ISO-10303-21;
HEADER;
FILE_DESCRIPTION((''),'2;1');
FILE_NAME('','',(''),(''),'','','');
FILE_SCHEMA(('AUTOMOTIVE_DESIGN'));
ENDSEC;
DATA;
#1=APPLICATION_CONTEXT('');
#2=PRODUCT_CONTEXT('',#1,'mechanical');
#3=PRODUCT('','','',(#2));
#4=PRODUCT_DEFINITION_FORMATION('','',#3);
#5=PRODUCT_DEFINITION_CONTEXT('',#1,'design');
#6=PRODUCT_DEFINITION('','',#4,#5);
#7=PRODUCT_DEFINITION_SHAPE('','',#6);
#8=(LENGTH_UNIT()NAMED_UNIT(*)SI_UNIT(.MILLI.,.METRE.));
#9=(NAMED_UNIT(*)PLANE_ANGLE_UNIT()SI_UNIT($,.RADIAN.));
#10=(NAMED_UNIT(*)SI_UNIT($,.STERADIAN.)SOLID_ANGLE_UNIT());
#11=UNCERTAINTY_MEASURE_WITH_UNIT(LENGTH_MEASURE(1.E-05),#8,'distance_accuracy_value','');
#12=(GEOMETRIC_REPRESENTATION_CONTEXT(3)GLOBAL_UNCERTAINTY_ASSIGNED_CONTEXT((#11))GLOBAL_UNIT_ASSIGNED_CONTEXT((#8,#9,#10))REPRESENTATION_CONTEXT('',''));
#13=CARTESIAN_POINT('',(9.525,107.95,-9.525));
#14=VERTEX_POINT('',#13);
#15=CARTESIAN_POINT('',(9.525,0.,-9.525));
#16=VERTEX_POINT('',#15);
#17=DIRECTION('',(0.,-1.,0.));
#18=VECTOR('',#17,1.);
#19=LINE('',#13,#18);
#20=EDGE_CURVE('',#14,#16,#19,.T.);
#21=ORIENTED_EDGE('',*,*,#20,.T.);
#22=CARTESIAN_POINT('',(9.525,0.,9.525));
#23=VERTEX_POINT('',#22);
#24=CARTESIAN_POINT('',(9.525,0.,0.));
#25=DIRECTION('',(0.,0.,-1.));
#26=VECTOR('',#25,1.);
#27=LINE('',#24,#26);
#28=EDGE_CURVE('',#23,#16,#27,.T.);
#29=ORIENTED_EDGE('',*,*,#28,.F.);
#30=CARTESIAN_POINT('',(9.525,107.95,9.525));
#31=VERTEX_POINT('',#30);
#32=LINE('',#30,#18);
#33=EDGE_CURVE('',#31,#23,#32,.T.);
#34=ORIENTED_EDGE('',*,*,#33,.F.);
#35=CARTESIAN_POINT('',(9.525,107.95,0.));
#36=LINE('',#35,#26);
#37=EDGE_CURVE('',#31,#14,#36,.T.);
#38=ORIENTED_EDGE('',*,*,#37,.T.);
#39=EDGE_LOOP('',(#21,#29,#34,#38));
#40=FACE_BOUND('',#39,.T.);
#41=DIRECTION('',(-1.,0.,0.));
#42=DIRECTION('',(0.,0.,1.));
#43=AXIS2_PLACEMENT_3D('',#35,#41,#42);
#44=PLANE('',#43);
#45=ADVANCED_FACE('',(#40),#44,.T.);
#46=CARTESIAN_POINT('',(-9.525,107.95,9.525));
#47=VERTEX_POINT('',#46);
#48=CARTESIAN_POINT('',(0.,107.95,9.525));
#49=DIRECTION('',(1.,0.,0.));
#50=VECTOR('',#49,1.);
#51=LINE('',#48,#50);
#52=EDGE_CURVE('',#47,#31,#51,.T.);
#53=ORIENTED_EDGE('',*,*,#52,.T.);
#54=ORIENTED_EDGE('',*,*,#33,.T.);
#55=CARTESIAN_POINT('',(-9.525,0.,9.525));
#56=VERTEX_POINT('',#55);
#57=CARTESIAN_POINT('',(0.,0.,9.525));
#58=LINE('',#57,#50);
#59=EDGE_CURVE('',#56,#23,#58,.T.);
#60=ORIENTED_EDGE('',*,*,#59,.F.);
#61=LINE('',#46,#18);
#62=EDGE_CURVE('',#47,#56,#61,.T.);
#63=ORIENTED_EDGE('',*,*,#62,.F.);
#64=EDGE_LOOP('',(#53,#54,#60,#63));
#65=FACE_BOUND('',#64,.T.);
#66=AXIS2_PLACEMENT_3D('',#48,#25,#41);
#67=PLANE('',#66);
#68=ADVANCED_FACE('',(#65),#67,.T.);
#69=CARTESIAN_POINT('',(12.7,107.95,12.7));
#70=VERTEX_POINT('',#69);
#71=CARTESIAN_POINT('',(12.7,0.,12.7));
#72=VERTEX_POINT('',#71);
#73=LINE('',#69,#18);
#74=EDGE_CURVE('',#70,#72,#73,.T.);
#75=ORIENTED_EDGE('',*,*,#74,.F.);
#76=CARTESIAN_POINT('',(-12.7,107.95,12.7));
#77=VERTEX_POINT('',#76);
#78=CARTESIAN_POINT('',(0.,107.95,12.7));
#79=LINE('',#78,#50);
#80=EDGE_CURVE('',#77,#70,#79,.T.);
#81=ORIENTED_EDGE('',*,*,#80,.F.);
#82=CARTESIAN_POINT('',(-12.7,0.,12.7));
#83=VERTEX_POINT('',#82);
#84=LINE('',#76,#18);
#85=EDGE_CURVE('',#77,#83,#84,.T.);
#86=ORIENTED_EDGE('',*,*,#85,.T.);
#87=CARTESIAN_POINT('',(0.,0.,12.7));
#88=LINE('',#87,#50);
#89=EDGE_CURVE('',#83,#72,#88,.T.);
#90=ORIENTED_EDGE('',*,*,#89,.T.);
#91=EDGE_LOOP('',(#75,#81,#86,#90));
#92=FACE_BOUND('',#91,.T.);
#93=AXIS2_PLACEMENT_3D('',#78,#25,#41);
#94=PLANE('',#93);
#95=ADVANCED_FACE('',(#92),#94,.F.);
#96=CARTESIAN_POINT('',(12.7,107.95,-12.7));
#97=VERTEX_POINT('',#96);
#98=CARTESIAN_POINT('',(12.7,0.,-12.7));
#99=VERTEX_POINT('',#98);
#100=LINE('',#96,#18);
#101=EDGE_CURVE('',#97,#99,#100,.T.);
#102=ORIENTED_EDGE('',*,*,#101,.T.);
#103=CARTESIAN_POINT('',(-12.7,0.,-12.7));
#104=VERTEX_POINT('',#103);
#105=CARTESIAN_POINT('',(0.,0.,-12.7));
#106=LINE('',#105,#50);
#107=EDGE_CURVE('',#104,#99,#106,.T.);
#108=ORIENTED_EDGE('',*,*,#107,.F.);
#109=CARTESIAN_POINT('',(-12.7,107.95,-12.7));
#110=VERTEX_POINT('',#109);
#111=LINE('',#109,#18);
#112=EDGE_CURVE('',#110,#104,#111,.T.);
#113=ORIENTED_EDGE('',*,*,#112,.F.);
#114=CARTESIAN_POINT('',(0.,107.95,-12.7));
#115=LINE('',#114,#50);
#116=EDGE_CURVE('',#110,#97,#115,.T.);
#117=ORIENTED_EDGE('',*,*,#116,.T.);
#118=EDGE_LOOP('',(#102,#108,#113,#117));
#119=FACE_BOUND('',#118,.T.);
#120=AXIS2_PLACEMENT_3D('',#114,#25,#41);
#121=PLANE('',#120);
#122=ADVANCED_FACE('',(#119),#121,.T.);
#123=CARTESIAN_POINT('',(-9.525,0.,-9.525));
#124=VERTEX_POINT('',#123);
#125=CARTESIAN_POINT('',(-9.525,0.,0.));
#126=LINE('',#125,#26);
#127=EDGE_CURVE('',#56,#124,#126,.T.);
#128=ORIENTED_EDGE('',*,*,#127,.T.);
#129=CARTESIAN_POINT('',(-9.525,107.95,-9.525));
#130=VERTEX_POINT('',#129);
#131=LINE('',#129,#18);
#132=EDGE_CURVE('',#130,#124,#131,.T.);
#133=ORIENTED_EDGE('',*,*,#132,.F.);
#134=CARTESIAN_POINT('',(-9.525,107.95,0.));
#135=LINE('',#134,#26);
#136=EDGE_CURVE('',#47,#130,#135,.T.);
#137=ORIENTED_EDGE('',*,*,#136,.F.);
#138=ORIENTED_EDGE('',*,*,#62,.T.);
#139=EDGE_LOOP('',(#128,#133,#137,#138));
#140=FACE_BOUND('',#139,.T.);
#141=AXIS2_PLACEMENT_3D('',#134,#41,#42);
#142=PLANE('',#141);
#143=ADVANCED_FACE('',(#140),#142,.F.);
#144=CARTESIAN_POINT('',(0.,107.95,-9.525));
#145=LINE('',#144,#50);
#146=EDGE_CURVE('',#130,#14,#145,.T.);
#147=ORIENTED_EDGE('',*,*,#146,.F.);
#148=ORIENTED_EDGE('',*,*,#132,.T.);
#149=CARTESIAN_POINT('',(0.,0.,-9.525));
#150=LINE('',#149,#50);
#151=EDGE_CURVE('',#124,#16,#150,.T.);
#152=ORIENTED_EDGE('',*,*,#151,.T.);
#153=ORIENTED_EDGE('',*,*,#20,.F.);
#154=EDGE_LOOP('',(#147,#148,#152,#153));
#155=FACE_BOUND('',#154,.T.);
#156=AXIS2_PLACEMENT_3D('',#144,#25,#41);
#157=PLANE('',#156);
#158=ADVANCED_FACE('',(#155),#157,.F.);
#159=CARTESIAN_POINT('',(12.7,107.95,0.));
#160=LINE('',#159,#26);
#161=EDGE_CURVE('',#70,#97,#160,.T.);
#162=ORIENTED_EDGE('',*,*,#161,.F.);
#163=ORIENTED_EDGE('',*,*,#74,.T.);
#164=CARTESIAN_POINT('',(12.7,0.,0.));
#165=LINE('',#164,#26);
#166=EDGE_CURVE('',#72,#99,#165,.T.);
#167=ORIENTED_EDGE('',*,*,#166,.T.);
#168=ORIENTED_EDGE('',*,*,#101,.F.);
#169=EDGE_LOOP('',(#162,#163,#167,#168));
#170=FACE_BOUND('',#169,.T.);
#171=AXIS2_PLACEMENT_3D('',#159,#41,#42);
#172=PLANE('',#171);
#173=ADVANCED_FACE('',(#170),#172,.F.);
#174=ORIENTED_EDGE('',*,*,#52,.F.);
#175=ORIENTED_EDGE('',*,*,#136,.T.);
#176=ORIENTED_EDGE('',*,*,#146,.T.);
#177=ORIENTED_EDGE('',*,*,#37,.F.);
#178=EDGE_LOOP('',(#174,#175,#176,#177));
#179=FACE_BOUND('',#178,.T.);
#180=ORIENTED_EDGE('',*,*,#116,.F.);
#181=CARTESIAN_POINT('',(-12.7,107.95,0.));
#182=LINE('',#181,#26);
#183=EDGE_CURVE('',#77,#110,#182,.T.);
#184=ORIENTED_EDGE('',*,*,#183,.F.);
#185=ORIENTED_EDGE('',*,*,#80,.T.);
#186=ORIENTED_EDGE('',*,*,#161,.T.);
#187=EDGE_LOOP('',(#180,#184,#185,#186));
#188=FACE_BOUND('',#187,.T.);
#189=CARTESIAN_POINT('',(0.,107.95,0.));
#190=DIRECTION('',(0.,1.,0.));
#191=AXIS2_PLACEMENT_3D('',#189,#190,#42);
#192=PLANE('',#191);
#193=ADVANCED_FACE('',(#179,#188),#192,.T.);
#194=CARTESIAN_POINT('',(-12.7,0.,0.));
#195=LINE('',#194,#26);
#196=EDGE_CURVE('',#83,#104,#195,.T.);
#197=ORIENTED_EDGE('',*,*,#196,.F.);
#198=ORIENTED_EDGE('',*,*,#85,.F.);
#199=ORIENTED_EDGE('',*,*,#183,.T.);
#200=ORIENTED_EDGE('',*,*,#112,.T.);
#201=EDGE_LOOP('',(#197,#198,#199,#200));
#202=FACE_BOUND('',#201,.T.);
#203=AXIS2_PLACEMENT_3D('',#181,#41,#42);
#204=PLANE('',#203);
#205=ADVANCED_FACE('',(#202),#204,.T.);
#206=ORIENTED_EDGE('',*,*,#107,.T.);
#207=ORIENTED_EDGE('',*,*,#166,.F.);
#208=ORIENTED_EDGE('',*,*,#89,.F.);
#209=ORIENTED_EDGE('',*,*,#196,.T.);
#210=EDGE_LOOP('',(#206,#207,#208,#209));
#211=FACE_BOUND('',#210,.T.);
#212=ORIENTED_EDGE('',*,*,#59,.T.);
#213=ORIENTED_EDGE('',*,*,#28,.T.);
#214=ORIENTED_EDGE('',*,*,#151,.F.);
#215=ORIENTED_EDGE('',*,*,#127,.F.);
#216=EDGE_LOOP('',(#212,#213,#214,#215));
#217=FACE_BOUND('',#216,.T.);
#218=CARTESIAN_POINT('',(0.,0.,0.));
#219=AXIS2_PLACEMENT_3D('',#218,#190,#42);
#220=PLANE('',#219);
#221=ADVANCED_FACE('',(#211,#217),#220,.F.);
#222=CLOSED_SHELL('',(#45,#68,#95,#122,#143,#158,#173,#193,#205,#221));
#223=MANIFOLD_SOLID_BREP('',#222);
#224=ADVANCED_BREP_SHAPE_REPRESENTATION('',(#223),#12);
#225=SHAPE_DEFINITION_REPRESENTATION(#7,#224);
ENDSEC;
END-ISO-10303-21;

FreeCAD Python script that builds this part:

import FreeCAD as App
import Part
import Sketcher
Q = App.Units.Quantity


def add_polygon(sketch, points):
    """Adds a closed chain of lines whose ends are joined by coincident constraints."""
    first, n = sketch.GeometryCount, len(points)
    for a, b in zip(points, points[1:] + points[:1]):
        sketch.addGeometry(Part.LineSegment(App.Vector(*a, 0), App.Vector(*b, 0)), False)
    for i in range(n):
        sketch.addConstraint(Sketcher.Constraint("Coincident", first + i, 2, first + (i + 1) % n, 1))

doc = App.newDocument("Part")
body = doc.addObject("PartDesign::Body", "Body")

# Sketch on XZ plane
sketch1 = body.newObject("Sketcher::SketchObject", "Sketch")
sketch1.AttachmentSupport = (doc.getObject("XZ_Plane"), [""])
sketch1.MapMode = "FlatFace"
add_polygon(sketch1, [(-12.7, -12.7), (-12.7, 12.7), (12.7, 12.7), (12.7, -12.7)])  # lines 0-3
add_polygon(sketch1, [(9.525, 9.525), (-9.525, 9.525), (-9.525, -9.525), (9.525, -9.525)])  # lines 4-7
sketch1.addConstraint([
    Sketcher.Constraint("Vertical", 0),
    Sketcher.Constraint("Horizontal", 1),
    Sketcher.Constraint("Vertical", 2),
    Sketcher.Constraint("Horizontal", 3),
    Sketcher.Constraint("Horizontal", 4),
    Sketcher.Constraint("Vertical", 5),
    Sketcher.Constraint("Horizontal", 6),
    Sketcher.Constraint("Vertical", 7),
    Sketcher.Constraint("Symmetric", 0, 2, 2, 2, -1, 1),
    Sketcher.Constraint("Symmetric", 4, 2, 6, 2, -1, 1),
    Sketcher.Constraint("Equal", 3, 0),
    Sketcher.Constraint("Equal", 6, 5),
    Sketcher.Constraint("DistanceX", 1, 1, 1, 2, Q("1 in")),
    Sketcher.Constraint("DistanceX", 4, 2, 4, 1, Q("0.75 in")),
])
pad1 = body.newObject("PartDesign::Pad", "Pad")
pad1.Profile = sketch1
pad1.Length = Q("4.25 in")
pad1.Reversed = True

doc.recompute()
